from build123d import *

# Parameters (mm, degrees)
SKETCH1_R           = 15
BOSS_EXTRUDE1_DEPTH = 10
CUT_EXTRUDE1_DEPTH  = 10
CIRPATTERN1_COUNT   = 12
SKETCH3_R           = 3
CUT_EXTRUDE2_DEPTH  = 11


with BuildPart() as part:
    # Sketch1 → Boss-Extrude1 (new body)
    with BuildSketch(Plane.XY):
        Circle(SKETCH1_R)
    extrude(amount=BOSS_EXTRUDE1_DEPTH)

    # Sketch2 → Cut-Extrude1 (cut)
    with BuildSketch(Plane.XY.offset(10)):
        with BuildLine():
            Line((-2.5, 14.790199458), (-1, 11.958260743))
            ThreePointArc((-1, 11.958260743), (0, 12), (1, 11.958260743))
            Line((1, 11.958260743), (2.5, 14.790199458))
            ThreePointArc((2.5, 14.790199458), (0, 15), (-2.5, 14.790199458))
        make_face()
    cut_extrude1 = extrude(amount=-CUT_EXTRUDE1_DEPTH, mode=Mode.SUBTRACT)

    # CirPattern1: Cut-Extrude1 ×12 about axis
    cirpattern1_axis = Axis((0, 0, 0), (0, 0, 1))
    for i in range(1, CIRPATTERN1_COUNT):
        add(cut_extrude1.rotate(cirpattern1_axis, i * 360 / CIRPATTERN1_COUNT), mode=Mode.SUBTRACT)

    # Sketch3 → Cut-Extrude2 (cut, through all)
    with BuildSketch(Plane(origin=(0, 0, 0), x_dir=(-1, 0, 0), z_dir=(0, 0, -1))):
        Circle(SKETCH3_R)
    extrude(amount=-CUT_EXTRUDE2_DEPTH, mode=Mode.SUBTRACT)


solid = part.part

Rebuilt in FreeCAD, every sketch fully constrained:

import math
import FreeCAD as App
import Part
import Sketcher

V = App.Vector
Q = App.Units.Quantity

doc = App.newDocument("Part")
body = doc.addObject("PartDesign::Body", "Body")

# Sketch on XY plane
sketch1 = body.newObject("Sketcher::SketchObject", "Sketch")
sketch1.AttachmentSupport = (doc.getObject("XY_Plane"), [""])
sketch1.MapMode = "FlatFace"
sketch1.addGeometry(Part.Circle(V(0, 0, 0), V(0, 0, 1), 15), False)
sketch1.addConstraint([
    Sketcher.Constraint("Coincident", 0, 3, -1, 1),
    Sketcher.Constraint("Diameter", 0, Q("30 mm")),
])
pad1 = body.newObject("PartDesign::Pad", "Pad")
pad1.Profile = sketch1
pad1.Length = 10

# Sketch on XY plane
sketch2 = body.newObject("Sketcher::SketchObject", "Sketch001")
sketch2.AttachmentSupport = (doc.getObject("XY_Plane"), [""])
sketch2.MapMode = "FlatFace"
sketch2.AttachmentOffset = App.Placement(V(0, 0, 10), App.Rotation())
sketch2.addGeometry([
    Part.LineSegment(V(-2.5, 14.8, 0), V(-1, 12, 0)),
    Part.ArcOfCircle(Part.Circle(V(0, 0, 0), V(0, 0, 1), 12), math.radians(85.22), math.radians(94.78)),
    Part.LineSegment(V(1, 12, 0), V(2.5, 14.8, 0)),
    Part.ArcOfCircle(Part.Circle(V(0, 0, 0), V(0, 0, 1), 15), math.radians(80.41), math.radians(99.59)),
], False)
sketch2.addConstraint([
    Sketcher.Constraint("Coincident", 0, 2, 1, 2),
    Sketcher.Constraint("Coincident", 1, 1, 2, 1),
    Sketcher.Constraint("Coincident", 2, 2, 3, 1),
    Sketcher.Constraint("Coincident", 3, 2, 0, 1),
    Sketcher.Constraint("Coincident", 1, 3, -1, 1),
    Sketcher.Constraint("Coincident", 3, 3, -1, 1),
    Sketcher.Constraint("Horizontal", 0, 2, 1, 1),
    Sketcher.Constraint("Horizontal", 2, 2, 3, 2),
    Sketcher.Constraint("Radius", 1, Q("12 mm")),
    Sketcher.Constraint("Radius", 3, Q("15 mm")),
    Sketcher.Constraint("DistanceX", 0, 2, -1, 1, Q("1 mm")),
    Sketcher.Constraint("DistanceX", 3, 2, 2, 2, Q("5 mm")),
])
pocket1 = body.newObject("PartDesign::Pocket", "Pocket")
pocket1.Profile = sketch2
pocket1.Length = 10
doc.recompute()

polarpattern = body.newObject("PartDesign::PolarPattern", "PolarPattern")
polarpattern.Originals = [pocket1]
polarpattern.Axis = (doc.getObject("Z_Axis"), [""])
polarpattern.Angle = 360
polarpattern.Occurrences = 12
body.Tip = polarpattern

# Sketch on XY plane
sketch3 = body.newObject("Sketcher::SketchObject", "Sketch002")
sketch3.AttachmentSupport = (doc.getObject("XY_Plane"), [""])
sketch3.MapMode = "FlatFace"
sketch3.addGeometry(Part.Circle(V(0, 0, 0), V(0, 0, 1), 3), False)
sketch3.addConstraint([
    Sketcher.Constraint("Coincident", 0, 3, -1, 1),
    Sketcher.Constraint("Diameter", 0, Q("6 mm")),
])
pocket2 = body.newObject("PartDesign::Pocket", "Pocket001")
pocket2.Profile = sketch3
pocket2.Type = "ThroughAll"
pocket2.Reversed = True

doc.recompute()
